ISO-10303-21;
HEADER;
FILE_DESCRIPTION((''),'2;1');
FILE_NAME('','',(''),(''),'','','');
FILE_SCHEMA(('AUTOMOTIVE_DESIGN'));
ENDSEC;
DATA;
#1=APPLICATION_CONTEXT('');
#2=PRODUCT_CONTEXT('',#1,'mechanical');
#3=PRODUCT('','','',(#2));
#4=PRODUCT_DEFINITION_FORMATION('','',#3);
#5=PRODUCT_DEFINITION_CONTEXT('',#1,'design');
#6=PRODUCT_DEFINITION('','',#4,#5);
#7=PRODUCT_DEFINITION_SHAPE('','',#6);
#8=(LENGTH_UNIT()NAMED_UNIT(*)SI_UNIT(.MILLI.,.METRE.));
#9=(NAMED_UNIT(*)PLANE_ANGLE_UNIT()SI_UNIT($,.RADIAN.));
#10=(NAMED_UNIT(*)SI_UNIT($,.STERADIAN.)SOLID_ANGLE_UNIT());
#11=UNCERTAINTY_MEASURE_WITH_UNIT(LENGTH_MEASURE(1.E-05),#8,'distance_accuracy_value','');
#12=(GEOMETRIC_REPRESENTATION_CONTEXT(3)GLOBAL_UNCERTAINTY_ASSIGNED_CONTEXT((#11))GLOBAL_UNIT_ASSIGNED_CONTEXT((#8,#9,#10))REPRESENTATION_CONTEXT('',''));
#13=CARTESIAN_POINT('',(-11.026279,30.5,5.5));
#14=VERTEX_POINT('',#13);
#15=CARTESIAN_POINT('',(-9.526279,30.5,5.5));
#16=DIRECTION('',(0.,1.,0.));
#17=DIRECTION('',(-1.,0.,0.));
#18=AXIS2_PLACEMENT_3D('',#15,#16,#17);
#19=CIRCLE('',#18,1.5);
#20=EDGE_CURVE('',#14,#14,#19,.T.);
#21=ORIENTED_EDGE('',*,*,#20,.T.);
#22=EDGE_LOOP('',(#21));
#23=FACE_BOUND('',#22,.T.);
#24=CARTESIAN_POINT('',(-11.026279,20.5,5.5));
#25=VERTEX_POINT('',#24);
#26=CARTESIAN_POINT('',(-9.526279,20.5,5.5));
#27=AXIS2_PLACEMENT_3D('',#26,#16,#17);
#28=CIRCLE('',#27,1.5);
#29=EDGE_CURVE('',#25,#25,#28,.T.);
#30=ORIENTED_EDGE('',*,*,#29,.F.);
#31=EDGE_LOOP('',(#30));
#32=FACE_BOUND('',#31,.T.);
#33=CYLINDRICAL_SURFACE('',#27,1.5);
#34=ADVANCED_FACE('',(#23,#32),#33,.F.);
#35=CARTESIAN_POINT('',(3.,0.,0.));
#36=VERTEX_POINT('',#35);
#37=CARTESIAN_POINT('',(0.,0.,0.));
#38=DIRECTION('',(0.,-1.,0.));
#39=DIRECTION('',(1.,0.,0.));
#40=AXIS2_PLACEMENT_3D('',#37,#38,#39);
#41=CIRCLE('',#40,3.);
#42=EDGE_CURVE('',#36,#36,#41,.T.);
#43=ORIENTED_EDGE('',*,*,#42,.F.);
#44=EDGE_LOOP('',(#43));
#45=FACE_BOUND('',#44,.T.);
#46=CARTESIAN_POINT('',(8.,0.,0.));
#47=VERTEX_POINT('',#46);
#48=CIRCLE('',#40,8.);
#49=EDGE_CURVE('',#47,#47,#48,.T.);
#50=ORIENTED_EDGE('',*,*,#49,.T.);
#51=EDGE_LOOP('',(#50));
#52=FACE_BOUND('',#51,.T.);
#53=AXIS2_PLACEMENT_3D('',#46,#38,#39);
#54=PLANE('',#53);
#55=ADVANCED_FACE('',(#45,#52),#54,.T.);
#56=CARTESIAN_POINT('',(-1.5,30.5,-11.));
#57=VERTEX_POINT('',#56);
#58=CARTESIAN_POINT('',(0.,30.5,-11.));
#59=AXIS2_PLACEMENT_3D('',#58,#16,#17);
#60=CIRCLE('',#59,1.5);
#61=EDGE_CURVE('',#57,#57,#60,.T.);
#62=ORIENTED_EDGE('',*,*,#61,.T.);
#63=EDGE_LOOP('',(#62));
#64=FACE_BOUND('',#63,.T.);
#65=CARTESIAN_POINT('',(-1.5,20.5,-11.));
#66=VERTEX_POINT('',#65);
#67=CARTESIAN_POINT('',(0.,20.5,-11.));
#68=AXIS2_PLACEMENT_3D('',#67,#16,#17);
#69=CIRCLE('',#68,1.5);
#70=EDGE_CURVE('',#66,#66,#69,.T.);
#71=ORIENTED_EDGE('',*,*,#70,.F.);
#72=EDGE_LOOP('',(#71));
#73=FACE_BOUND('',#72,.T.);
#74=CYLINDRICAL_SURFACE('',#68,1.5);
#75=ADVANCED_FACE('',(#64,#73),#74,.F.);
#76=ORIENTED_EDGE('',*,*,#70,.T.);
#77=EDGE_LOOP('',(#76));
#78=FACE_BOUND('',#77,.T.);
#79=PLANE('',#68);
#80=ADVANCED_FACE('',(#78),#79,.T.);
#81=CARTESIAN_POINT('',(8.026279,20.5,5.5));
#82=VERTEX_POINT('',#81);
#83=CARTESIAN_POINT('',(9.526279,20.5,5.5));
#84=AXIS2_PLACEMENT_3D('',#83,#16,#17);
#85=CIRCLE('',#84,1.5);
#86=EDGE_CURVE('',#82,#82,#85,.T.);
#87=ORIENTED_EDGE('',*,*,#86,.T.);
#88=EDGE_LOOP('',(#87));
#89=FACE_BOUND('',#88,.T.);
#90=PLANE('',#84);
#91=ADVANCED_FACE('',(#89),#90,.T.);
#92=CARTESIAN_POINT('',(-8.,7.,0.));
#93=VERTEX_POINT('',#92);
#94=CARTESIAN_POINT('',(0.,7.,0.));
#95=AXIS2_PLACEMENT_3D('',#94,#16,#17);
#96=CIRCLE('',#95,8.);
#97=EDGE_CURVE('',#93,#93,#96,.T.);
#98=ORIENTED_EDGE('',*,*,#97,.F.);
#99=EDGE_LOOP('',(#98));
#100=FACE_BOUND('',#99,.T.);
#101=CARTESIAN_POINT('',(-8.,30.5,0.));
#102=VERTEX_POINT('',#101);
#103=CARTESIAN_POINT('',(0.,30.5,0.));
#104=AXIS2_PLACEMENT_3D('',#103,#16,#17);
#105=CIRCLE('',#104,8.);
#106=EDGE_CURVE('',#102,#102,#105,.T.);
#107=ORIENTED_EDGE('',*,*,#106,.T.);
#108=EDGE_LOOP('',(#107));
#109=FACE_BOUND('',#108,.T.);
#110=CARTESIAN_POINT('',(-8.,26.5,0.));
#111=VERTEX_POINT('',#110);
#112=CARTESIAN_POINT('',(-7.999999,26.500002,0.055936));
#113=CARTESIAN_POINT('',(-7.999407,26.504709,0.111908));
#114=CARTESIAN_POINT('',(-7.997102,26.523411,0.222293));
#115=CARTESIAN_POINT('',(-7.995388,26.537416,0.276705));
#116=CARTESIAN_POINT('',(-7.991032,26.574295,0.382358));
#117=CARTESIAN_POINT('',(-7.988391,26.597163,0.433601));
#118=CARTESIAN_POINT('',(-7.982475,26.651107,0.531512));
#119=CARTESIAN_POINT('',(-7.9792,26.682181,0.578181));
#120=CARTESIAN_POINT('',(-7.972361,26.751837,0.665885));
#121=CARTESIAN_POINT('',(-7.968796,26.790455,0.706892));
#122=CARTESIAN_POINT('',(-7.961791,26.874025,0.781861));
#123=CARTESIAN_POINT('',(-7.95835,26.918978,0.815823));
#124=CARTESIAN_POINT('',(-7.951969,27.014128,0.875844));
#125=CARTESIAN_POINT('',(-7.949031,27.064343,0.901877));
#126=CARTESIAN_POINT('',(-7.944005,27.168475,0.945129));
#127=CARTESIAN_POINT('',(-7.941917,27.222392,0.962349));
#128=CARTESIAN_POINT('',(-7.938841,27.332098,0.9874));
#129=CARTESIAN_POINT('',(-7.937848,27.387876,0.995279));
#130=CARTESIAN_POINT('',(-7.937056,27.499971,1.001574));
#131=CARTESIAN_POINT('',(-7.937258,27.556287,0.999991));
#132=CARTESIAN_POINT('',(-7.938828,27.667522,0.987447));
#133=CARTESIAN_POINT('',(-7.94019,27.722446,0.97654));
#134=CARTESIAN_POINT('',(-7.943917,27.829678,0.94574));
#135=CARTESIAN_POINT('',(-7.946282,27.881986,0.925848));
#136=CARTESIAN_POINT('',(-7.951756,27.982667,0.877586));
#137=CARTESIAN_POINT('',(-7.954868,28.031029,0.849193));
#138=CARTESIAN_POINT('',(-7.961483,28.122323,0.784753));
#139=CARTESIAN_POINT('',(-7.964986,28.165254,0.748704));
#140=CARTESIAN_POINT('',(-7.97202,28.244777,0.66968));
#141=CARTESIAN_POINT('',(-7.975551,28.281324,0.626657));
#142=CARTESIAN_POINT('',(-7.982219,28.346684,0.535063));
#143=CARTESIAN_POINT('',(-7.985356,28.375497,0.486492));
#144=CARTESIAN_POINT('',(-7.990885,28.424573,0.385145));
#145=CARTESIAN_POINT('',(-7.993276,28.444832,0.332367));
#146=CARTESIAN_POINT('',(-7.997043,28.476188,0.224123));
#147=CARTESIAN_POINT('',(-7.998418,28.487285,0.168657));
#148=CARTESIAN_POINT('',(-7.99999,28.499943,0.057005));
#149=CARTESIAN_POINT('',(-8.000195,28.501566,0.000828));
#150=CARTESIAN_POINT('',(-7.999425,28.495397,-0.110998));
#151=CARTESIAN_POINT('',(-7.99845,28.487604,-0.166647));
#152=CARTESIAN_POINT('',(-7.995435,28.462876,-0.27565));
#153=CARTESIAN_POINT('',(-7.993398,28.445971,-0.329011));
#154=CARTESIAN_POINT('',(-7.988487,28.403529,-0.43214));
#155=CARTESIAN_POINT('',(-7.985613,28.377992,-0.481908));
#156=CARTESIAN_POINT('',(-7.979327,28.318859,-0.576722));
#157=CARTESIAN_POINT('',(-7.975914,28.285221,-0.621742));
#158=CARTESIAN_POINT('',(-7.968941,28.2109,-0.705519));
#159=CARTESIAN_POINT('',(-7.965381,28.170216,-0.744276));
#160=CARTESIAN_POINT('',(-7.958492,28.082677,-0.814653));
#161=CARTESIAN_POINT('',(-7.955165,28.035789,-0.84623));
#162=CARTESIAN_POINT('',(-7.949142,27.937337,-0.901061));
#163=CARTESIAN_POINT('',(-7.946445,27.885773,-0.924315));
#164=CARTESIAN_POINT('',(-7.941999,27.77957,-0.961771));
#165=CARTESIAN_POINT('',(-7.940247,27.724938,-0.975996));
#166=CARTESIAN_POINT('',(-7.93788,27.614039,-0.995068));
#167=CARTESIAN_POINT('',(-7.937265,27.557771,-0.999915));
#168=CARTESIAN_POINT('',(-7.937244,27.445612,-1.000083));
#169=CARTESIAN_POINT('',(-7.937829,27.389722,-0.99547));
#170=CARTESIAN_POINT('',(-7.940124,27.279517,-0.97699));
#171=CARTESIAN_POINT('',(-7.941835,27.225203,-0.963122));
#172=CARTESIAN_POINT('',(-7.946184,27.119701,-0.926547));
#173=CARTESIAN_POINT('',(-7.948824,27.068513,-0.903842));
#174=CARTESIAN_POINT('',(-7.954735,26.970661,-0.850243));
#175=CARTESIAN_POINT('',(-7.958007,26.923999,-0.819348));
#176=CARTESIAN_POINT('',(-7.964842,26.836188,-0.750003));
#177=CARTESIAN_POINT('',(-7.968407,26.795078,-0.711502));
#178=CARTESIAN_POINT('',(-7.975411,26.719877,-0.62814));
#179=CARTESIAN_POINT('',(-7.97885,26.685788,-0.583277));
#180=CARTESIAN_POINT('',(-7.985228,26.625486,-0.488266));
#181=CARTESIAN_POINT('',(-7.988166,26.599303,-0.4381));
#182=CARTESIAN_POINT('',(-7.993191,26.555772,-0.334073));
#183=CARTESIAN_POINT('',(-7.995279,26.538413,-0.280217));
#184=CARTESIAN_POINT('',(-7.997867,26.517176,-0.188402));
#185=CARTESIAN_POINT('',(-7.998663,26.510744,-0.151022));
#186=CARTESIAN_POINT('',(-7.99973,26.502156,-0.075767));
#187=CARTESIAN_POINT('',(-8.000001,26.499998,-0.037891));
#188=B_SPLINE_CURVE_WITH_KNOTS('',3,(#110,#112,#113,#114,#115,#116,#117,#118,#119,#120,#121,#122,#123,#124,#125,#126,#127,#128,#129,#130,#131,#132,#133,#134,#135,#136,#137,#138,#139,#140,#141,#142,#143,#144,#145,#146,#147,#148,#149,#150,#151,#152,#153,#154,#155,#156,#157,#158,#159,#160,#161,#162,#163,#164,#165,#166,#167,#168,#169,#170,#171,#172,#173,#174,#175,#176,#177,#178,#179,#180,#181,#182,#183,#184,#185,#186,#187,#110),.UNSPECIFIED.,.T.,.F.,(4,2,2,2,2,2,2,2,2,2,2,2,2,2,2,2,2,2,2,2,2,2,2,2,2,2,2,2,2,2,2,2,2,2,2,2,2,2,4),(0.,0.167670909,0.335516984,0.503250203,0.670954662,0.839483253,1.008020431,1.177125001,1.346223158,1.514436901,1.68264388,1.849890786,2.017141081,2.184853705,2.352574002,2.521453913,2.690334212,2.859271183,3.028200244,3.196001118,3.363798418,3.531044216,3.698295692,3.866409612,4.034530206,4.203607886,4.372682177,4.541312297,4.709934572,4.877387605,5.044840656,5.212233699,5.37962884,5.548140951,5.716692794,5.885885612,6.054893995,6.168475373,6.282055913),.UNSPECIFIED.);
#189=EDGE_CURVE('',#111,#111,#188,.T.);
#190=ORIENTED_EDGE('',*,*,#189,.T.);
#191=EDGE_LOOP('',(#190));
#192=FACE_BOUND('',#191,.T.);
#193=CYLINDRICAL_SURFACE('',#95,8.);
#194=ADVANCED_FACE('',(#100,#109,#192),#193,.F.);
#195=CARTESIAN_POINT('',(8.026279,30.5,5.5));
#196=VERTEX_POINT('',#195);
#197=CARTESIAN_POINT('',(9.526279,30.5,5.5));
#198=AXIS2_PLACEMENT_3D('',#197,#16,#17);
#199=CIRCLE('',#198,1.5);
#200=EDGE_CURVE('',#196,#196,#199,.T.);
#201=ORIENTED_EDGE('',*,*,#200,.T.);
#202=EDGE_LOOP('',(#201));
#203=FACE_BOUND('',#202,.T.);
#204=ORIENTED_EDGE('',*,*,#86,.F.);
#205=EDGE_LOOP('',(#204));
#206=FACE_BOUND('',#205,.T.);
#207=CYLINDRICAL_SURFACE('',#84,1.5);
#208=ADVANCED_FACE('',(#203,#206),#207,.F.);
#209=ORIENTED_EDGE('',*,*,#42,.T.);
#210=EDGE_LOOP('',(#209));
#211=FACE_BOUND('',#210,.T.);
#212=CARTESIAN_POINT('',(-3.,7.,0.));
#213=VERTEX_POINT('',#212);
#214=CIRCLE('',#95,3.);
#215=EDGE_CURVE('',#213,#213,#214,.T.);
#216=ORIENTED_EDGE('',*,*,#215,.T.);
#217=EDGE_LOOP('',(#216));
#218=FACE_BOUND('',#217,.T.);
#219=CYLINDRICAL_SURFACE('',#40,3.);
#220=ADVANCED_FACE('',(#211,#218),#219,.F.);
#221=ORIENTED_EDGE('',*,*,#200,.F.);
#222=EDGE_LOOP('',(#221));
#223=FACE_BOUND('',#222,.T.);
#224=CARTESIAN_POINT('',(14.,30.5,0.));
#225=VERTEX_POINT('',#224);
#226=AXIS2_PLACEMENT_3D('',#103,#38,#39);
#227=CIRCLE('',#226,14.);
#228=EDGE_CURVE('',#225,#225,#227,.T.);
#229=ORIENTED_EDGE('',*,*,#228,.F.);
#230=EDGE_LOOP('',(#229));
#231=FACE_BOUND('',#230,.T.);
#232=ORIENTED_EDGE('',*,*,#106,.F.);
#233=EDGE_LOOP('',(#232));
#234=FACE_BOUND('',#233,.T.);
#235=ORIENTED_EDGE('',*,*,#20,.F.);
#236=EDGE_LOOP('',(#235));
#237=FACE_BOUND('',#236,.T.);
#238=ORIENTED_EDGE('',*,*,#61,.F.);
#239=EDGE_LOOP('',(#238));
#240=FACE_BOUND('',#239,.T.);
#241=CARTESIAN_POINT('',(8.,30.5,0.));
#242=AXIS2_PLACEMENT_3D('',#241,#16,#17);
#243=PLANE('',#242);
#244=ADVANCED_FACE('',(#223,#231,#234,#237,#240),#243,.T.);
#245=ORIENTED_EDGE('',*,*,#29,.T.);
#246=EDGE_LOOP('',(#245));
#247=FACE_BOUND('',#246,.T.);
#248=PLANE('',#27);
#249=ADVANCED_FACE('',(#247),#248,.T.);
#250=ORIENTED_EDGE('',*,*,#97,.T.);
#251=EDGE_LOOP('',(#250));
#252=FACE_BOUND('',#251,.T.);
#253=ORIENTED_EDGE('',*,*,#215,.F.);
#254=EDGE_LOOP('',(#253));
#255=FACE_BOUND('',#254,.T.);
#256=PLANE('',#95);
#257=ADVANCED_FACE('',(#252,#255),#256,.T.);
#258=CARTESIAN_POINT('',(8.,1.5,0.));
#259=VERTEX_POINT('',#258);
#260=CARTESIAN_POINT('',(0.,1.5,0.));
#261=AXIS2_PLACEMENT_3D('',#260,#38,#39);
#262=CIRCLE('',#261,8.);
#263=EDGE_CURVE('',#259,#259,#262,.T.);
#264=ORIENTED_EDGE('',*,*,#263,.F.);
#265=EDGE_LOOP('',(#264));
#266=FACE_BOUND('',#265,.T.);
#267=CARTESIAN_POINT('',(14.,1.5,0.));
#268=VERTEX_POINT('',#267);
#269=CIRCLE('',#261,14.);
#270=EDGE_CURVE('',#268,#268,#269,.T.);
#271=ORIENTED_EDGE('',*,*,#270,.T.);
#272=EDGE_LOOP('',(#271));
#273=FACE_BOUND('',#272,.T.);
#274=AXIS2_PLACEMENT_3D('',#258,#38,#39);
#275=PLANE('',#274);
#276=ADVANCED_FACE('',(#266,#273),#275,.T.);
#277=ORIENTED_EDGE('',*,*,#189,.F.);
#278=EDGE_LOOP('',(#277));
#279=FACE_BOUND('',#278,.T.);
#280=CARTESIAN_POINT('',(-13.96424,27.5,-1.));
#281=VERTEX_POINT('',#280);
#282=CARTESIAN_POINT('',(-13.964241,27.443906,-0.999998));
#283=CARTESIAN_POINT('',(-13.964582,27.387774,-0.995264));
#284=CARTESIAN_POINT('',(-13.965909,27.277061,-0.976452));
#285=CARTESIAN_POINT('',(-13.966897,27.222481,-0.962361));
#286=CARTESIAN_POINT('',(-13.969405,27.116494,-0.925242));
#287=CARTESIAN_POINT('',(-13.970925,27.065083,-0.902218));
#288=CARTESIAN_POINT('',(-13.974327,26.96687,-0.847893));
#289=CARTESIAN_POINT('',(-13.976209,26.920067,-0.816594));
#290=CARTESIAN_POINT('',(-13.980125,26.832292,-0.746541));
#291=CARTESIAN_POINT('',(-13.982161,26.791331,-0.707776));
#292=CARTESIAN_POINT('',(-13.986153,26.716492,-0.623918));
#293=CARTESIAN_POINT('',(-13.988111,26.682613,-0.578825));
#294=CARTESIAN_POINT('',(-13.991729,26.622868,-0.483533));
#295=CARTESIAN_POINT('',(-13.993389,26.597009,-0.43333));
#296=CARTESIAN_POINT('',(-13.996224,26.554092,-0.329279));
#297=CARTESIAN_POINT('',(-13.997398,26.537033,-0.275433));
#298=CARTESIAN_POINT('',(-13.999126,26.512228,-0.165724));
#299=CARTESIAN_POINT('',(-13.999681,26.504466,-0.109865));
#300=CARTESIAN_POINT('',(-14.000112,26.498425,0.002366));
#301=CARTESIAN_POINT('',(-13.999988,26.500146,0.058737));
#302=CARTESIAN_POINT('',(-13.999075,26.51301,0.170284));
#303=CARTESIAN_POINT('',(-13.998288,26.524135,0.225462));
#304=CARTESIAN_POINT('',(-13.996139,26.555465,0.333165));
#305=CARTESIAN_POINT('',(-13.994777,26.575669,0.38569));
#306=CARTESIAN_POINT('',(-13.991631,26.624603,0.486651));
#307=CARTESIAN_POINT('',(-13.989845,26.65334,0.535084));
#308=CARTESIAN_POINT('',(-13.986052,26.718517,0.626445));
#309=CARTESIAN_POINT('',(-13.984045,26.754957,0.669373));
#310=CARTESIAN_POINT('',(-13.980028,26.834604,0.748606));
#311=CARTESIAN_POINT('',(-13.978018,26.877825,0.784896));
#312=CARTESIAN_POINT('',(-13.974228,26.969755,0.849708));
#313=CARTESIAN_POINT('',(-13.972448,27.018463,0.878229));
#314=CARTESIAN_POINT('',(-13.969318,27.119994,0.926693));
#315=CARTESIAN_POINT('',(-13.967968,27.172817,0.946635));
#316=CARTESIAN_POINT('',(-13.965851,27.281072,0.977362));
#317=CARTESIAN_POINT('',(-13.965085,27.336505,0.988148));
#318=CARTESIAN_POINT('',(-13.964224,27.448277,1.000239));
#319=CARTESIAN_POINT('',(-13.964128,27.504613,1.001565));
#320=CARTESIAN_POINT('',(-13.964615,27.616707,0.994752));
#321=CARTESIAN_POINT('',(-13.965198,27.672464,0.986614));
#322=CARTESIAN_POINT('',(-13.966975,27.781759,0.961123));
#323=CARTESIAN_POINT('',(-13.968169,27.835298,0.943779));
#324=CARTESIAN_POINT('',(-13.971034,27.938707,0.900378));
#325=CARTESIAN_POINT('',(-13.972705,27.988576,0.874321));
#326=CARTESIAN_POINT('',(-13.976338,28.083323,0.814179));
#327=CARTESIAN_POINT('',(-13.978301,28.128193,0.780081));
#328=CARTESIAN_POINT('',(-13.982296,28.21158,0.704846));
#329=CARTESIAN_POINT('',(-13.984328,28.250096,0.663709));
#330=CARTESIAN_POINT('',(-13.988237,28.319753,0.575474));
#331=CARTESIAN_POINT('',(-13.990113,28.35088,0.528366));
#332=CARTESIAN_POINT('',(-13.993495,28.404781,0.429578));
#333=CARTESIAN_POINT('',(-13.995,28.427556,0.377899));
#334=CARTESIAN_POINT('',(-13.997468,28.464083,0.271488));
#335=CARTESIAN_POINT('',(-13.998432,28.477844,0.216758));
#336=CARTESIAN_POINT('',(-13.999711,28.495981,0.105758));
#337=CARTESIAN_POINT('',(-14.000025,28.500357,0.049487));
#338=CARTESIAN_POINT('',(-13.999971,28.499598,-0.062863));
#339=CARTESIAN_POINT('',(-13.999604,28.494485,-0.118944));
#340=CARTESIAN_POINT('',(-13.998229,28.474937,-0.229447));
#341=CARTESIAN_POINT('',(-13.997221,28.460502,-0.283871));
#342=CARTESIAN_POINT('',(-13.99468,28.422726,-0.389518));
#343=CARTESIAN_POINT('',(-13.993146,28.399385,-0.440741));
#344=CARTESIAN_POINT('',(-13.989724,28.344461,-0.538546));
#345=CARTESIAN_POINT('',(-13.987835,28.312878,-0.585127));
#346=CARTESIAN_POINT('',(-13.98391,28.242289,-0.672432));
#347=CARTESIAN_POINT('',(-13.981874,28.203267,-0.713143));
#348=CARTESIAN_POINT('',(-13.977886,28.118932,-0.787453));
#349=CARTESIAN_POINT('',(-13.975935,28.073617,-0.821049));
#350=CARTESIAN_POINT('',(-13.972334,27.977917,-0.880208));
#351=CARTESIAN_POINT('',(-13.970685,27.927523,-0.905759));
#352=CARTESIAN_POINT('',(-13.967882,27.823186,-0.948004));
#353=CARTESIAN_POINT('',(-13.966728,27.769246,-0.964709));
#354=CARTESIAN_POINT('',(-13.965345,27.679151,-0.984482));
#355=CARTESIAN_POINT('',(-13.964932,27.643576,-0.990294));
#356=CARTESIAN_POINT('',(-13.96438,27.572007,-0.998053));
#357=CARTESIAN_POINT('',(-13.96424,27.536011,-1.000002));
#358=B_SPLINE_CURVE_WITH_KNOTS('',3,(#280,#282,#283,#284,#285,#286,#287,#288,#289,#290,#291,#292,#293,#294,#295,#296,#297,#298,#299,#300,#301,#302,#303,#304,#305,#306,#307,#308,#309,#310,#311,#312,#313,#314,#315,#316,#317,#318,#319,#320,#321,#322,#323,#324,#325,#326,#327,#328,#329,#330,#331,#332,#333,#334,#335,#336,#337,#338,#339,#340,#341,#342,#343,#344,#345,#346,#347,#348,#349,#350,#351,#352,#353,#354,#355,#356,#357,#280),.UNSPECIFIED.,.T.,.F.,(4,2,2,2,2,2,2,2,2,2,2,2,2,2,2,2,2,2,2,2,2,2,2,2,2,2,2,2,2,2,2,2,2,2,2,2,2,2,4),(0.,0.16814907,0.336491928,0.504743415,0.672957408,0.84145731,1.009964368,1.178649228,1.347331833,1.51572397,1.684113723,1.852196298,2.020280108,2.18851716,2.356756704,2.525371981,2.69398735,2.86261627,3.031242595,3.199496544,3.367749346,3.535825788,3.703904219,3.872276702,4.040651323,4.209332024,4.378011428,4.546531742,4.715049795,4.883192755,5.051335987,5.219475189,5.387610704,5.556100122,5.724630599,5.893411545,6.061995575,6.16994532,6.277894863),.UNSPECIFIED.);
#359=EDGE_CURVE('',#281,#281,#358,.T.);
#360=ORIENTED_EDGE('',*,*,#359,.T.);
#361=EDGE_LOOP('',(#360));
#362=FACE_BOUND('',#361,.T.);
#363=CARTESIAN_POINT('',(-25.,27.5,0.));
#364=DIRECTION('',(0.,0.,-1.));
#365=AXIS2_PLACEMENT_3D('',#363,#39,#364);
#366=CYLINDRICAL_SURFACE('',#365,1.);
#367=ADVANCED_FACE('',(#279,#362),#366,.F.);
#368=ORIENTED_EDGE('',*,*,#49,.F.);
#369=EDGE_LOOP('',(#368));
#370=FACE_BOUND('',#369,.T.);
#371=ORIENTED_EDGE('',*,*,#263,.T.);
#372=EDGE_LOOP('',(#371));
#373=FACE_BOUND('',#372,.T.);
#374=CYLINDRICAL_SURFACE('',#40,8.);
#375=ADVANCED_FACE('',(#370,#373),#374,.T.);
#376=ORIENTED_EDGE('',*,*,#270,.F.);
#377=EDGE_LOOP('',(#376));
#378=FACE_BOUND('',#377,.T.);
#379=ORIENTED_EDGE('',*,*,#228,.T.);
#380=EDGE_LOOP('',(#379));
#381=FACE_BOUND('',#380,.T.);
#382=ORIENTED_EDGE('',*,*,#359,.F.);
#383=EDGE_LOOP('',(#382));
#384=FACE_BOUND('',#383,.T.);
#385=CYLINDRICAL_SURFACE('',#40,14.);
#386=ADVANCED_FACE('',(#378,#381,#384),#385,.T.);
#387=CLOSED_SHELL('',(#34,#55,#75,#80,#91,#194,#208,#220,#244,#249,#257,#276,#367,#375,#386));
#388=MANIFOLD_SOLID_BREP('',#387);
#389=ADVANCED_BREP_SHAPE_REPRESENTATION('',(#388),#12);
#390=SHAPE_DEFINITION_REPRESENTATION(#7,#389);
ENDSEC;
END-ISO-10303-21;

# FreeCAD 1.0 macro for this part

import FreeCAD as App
import Part
import Sketcher
Q = App.Units.Quantity


def add_polygon(sketch, points):
    """Adds a closed chain of lines whose ends are joined by coincident constraints."""
    first, n = sketch.GeometryCount, len(points)
    for a, b in zip(points, points[1:] + points[:1]):
        sketch.addGeometry(Part.LineSegment(App.Vector(*a, 0), App.Vector(*b, 0)), False)
    for i in range(n):
        sketch.addConstraint(Sketcher.Constraint("Coincident", first + i, 2, first + (i + 1) % n, 1))

doc = App.newDocument("Part")
body = doc.addObject("PartDesign::Body", "Body")

sketch1 = body.newObject("Sketcher::SketchObject", "Sketch")
sketch1.AttachmentSupport = (doc.getObject("XY_Plane"), [""])
sketch1.MapMode = "FlatFace"
add_polygon(sketch1, [(8, 0), (8, 1.5), (14, 1.5), (14, 30.5), (8, 30.5), (8, 32), (3, 32), (3, 0)])
sketch1.addConstraint(Sketcher.Constraint("Vertical", 0))
sketch1.addConstraint(Sketcher.Constraint("Horizontal", 1))
sketch1.addConstraint(Sketcher.Constraint("Vertical", 2))
sketch1.addConstraint(Sketcher.Constraint("Horizontal", 3))
sketch1.addConstraint(Sketcher.Constraint("Vertical", 4))
sketch1.addConstraint(Sketcher.Constraint("Horizontal", 5))
sketch1.addConstraint(Sketcher.Constraint("Vertical", 6))
sketch1.addConstraint(Sketcher.Constraint("Horizontal", 7))
sketch1.addConstraint(Sketcher.Constraint("PointOnObject", 6, 2, -1))
sketch1.addConstraint(Sketcher.Constraint("Vertical", 0, 2, 3, 2))
sketch1.addConstraint(Sketcher.Constraint("Equal", 0, 4))
sketch1.addConstraint(Sketcher.Constraint("DistanceX", 1, 1, 1, 2, Q("6 mm")))
sketch1.addConstraint(Sketcher.Constraint("DistanceX", 5, 2, 5, 1, Q("5 mm")))
sketch1.addConstraint(Sketcher.Constraint("DistanceY", 2, 1, 2, 2, Q("29 mm")))
sketch1.addConstraint(Sketcher.Constraint("DistanceY", 6, 2, 6, 1, Q("32 mm")))
sketch1.addConstraint(Sketcher.Constraint("DistanceX", -1, 1, 0, 2, Q("8 mm")))
revolution = body.newObject("PartDesign::Revolution", "Revolution")
revolution.Profile = sketch1
revolution.ReferenceAxis = (sketch1, ["V_Axis"])
revolution.Angle = 360

sketch2 = body.newObject("Sketcher::SketchObject", "Sketch001")
sketch2.AttachmentSupport = (doc.getObject("XZ_Plane"), [""])
sketch2.MapMode = "FlatFace"
sketch2.AttachmentOffset = App.Placement(App.Vector(0, 0, -30.5), App.Rotation())
sketch2.addGeometry(Part.Circle(App.Vector(0, -11, 0), App.Vector(0, 0, 1), 1.5), False)
sketch2.addGeometry(Part.Circle(App.Vector(9.526279, 5.5, 0), App.Vector(0, 0, 1), 1.5), False)
sketch2.addGeometry(Part.Circle(App.Vector(-9.526279, 5.5, 0), App.Vector(0, 0, 1), 1.5), False)
sketch2.addConstraint(Sketcher.Constraint("Equal", 0, 1))
sketch2.addConstraint(Sketcher.Constraint("Equal", 1, 2))
sketch2.addConstraint(Sketcher.Constraint("Symmetric", 1, 3, 2, 3, -2))
sketch2.addConstraint(Sketcher.Constraint("PointOnObject", 0, 3, -2))
sketch2.addConstraint(Sketcher.Constraint("Diameter", 0, Q("3 mm")))
sketch2.addConstraint(Sketcher.Constraint("DistanceY", 0, 3, -1, 1, Q("11 mm")))
sketch2.addConstraint(Sketcher.Constraint("DistanceY", -1, 1, 1, 3, Q("5.5 mm")))
sketch2.addConstraint(Sketcher.Constraint("DistanceX", -1, 1, 1, 3, Q("9.526279 mm")))
pocket1 = body.newObject("PartDesign::Pocket", "Pocket")
pocket1.Profile = sketch2
pocket1.Length = 10
pocket1.Reversed = True

sketch3 = body.newObject("Sketcher::SketchObject", "Sketch002")
sketch3.AttachmentSupport = (doc.getObject("XZ_Plane"), [""])
sketch3.MapMode = "FlatFace"
sketch3.AttachmentOffset = App.Placement(App.Vector(0, 0, -32), App.Rotation())
sketch3.addGeometry(Part.Circle(App.Vector(0, 0, 0), App.Vector(0, 0, 1), 8), False)
sketch3.addConstraint(Sketcher.Constraint("Coincident", 0, 3, -1, 1))
sketch3.addConstraint(Sketcher.Constraint("Diameter", 0, Q("16 mm")))
pocket2 = body.newObject("PartDesign::Pocket", "Pocket001")
pocket2.Profile = sketch3
pocket2.Length = 25
pocket2.Reversed = True

sketch4 = body.newObject("Sketcher::SketchObject", "Sketch003")
sketch4.AttachmentSupport = (doc.getObject("YZ_Plane"), [""])
sketch4.MapMode = "FlatFace"
sketch4.addGeometry(Part.Circle(App.Vector(27.5, 0, 0), App.Vector(0, 0, 1), 1), False)
sketch4.addConstraint(Sketcher.Constraint("PointOnObject", 0, 3, -1))
sketch4.addConstraint(Sketcher.Constraint("Diameter", 0, Q("2 mm")))
sketch4.addConstraint(Sketcher.Constraint("DistanceX", -1, 1, 0, 3, Q("27.5 mm")))
pocket3 = body.newObject("PartDesign::Pocket", "Pocket002")
pocket3.Profile = sketch4
pocket3.Length = 25

doc.recompute()
